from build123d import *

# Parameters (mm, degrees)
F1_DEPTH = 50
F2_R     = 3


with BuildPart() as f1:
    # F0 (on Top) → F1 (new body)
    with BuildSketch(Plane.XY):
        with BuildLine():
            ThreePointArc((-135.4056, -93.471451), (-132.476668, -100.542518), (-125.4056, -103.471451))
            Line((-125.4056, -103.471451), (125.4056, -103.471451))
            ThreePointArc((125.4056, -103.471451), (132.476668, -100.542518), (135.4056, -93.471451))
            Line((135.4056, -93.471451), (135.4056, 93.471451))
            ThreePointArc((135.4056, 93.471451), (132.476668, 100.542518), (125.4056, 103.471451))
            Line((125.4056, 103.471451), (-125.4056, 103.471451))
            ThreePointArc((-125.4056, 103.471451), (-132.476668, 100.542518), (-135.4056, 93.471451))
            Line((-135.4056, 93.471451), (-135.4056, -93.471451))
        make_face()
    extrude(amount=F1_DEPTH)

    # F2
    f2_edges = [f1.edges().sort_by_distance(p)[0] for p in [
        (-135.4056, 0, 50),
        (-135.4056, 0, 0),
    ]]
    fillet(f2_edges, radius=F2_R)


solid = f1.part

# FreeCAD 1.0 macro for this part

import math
import FreeCAD as App
import Part
import Sketcher

V = App.Vector


def edges_at(feature, points):
    """Names of the edges that pass closest to the given points."""
    edges = feature.Shape.Edges
    near = lambda p: min(range(len(edges)), key=lambda i: edges[i].distToShape(Part.Vertex(*p))[0])
    return sorted({f"Edge{near(p) + 1}" for p in points})

doc = App.newDocument("Part")
body = doc.addObject("PartDesign::Body", "Body")

sketch1 = body.newObject("Sketcher::SketchObject", "Sketch")
sketch1.AttachmentSupport = (doc.getObject("XY_Plane"), [""])
sketch1.MapMode = "FlatFace"
sketch1.addGeometry([
    Part.ArcOfCircle(Part.Circle(V(-125, -93, 0), V(0, 0, 1), 10), math.radians(-180), math.radians(-90)),
    Part.LineSegment(V(-125, -103, 0), V(125, -103, 0)),
    Part.ArcOfCircle(Part.Circle(V(125, -93, 0), V(0, 0, 1), 10), math.radians(-90), math.radians(0)),
    Part.LineSegment(V(135, -93, 0), V(135, 93, 0)),
    Part.ArcOfCircle(Part.Circle(V(125, 93, 0), V(0, 0, 1), 10), math.radians(0), math.radians(90)),
    Part.LineSegment(V(125, 103, 0), V(-125, 103, 0)),
    Part.ArcOfCircle(Part.Circle(V(-125, 93, 0), V(0, 0, 1), 10), math.radians(90), math.radians(180)),
    Part.LineSegment(V(-135, 93, 0), V(-135, -93, 0)),
], False)
sketch1.addConstraint([
    Sketcher.Constraint("Tangent", 0, 2, 1, 1),
    Sketcher.Constraint("Tangent", 1, 2, 2, 1),
    Sketcher.Constraint("Tangent", 2, 2, 3, 1),
    Sketcher.Constraint("Tangent", 3, 2, 4, 1),
    Sketcher.Constraint("Tangent", 4, 2, 5, 1),
    Sketcher.Constraint("Tangent", 5, 2, 6, 1),
    Sketcher.Constraint("Tangent", 6, 2, 7, 1),
    Sketcher.Constraint("Tangent", 7, 2, 0, 1),
    Sketcher.Constraint("Horizontal", 1),
    Sketcher.Constraint("Vertical", 3),
    Sketcher.Constraint("Horizontal", 5),
    Sketcher.Constraint("Vertical", 7),
    Sketcher.Constraint("Equal", 0, 2),
    Sketcher.Constraint("Equal", 2, 4),
    Sketcher.Constraint("Equal", 4, 6),
    Sketcher.Constraint("Symmetric", 0, 3, 4, 3, -1, 1),
    Sketcher.Constraint("Radius", 0, 10.000001),
    Sketcher.Constraint("DistanceX", 1, 1, 1, 2, 250.8112),
    Sketcher.Constraint("DistanceY", 3, 1, 3, 2, 186.942902),
])
pad1 = body.newObject("PartDesign::Pad", "Pad")
pad1.Profile = sketch1
pad1.Length = 50
doc.recompute()

fillet = body.newObject("PartDesign::Fillet", "Fillet")
fillet.Base = (pad1, edges_at(pad1, [(-135.406, 0, 50), (-135.406, 0, 0)]))
fillet.Radius = 3

doc.recompute()
